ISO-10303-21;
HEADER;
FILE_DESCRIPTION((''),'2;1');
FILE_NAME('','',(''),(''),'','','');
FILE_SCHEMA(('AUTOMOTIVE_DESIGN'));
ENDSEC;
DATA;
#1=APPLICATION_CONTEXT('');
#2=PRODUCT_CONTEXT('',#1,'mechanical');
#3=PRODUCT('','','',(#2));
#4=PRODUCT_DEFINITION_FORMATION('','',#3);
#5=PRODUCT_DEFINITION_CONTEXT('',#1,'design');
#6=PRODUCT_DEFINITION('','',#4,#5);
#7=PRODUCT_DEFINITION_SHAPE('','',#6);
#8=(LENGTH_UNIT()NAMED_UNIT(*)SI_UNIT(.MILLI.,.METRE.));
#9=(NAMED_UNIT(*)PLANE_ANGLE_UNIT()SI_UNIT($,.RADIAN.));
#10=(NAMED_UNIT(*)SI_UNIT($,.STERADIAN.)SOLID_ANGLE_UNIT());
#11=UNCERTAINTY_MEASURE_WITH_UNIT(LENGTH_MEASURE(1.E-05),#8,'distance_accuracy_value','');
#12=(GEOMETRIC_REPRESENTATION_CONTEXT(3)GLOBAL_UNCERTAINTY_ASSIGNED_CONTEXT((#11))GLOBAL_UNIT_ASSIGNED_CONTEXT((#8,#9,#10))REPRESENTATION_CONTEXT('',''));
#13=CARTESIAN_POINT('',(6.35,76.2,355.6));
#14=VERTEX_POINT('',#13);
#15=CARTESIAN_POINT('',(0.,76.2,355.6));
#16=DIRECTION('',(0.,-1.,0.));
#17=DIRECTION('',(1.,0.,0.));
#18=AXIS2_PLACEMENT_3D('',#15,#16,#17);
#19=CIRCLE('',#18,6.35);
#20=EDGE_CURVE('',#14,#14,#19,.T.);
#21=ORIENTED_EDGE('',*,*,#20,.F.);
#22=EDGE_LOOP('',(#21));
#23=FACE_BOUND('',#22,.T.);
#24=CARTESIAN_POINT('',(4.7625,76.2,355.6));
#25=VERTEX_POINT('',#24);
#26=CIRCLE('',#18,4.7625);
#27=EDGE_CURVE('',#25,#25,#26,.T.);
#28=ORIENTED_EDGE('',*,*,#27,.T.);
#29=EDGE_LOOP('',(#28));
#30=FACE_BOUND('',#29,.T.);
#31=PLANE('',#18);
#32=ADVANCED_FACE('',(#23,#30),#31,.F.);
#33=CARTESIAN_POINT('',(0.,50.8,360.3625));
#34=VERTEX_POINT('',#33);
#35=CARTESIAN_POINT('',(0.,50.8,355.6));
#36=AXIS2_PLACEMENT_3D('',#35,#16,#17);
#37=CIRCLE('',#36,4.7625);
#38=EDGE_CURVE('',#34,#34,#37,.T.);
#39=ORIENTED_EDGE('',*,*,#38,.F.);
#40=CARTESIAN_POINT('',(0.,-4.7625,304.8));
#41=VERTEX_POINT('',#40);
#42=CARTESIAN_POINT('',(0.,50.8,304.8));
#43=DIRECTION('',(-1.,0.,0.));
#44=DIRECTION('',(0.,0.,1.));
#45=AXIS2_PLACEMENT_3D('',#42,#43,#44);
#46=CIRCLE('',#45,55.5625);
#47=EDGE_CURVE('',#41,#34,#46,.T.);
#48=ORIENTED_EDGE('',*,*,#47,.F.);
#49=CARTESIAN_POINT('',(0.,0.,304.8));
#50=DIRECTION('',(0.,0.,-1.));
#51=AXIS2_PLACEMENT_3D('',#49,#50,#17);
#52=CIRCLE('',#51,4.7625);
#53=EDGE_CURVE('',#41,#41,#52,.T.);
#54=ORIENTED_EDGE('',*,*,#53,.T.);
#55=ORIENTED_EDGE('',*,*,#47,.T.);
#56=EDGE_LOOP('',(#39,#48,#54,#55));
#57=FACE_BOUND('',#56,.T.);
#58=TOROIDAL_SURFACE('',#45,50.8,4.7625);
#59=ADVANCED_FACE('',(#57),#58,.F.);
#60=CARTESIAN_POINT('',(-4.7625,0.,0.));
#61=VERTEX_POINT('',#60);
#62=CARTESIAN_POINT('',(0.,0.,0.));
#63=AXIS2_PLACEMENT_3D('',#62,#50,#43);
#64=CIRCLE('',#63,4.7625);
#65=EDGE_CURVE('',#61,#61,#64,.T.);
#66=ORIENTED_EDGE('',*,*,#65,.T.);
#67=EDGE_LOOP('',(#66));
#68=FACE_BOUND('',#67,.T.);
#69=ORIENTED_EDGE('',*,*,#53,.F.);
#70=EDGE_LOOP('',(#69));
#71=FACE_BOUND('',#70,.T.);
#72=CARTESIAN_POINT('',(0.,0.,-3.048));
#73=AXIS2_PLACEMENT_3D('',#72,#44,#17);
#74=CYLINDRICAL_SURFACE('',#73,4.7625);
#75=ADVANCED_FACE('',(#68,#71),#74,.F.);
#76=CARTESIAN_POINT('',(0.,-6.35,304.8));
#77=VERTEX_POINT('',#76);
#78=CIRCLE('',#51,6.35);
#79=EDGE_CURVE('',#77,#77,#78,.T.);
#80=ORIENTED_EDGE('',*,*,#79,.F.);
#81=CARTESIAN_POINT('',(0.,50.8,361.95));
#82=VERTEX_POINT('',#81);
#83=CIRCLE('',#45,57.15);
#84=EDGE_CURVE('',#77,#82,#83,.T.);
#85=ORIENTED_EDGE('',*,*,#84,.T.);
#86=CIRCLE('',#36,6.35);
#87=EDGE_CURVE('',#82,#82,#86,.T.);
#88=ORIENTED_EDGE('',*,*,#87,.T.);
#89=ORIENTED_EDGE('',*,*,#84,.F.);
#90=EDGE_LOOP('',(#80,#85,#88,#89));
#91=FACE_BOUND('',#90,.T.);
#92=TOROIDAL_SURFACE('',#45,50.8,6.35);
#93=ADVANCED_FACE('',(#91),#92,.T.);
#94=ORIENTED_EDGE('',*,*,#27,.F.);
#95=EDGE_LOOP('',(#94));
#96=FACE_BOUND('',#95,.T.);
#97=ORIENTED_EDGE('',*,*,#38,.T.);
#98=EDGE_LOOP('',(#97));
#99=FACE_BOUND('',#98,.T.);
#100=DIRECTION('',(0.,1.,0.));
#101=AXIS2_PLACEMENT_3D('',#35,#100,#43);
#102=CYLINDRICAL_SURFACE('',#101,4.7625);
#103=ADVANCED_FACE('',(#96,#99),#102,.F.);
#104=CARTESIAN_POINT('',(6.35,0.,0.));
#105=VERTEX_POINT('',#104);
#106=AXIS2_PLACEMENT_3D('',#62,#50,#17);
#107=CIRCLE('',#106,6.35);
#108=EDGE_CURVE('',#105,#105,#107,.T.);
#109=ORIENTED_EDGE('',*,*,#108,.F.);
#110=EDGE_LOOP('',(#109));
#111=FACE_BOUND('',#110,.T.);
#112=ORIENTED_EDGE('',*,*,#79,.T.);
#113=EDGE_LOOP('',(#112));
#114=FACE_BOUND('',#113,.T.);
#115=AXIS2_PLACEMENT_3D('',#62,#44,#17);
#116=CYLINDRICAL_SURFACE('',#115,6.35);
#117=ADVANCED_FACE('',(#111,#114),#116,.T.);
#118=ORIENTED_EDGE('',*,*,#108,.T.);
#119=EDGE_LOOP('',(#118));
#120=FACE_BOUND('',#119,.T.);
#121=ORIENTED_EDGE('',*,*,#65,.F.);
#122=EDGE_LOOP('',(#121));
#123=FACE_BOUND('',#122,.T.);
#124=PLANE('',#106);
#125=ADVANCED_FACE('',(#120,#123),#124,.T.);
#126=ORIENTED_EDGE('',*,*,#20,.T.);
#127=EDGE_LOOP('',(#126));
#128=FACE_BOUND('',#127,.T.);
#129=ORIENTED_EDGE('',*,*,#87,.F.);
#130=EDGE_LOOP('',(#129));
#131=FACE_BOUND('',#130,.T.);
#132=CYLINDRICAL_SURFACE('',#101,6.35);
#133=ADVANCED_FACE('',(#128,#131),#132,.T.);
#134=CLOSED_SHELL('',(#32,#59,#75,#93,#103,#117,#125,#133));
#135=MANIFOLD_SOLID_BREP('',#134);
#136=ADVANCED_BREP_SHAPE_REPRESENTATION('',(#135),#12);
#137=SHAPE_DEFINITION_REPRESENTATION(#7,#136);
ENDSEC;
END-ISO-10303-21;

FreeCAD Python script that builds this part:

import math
import FreeCAD as App
import Part
import Sketcher

V = App.Vector
Q = App.Units.Quantity

doc = App.newDocument("Part")
params = doc.addObject("Spreadsheet::Sheet", "Params")
for row, (alias, value) in enumerate([
    ("sketch1_diameter", "0.5 in"),
    ("sketch2_radius", "2 in"),
    ("sketch2_width", "1 in"),
    ("sketch2_height", "12 in"),
    ("sketch3_diameter", "0.375 in"),
    ("sketch4_radius", "2 in"),
    ("sketch4_width", "1 in"),
    ("sketch4_height", "12 in"),
], start=1):
    params.set(f"A{row}", alias)
    params.set(f"B{row}", "=" + value)
    params.setAlias(f"B{row}", alias)

body = doc.addObject("PartDesign::Body", "Body")

# Sketch on XY plane
sketch1 = doc.addObject("Sketcher::SketchObject", "Sketch")
body.addObject(sketch1)
sketch1.AttachmentSupport = (doc.XY_Plane, [""])
sketch1.MapMode = "FlatFace"
sketch1.addGeometry(Part.Circle(V(0, 0, 0), V(0, 0, 1), 6.35), False)
sketch1.addConstraint([
    Sketcher.Constraint("Coincident", 0, 3, -1, 1),
    Sketcher.Constraint("Diameter", 0, Q("0.5 in")),
])
sketch1.setExpression("Constraints[1]", "Params.sketch1_diameter")

# Sketch on YZ plane
sketch2 = doc.addObject("Sketcher::SketchObject", "Sketch001")
body.addObject(sketch2)
sketch2.AttachmentSupport = (doc.YZ_Plane, [""])
sketch2.MapMode = "FlatFace"
sketch2.addGeometry([
    Part.LineSegment(V(0, 0, 0), V(0, 304.8, 0)),
    Part.ArcOfCircle(Part.Circle(V(50.8, 304.8, 0), V(0, 0, 1), 50.8), math.radians(90), math.radians(180)),
    Part.LineSegment(V(50.8, 355.6, 0), V(76.2, 355.6, 0)),
], False)
sketch2.addConstraint([
    Sketcher.Constraint("Tangent", 0, 2, 1, 2),
    Sketcher.Constraint("Tangent", 1, 1, 2, 1),
    Sketcher.Constraint("Vertical", 0),
    Sketcher.Constraint("Horizontal", 2),
    Sketcher.Constraint("Coincident", 0, 1, -1, 1),
    Sketcher.Constraint("Radius", 1, Q("2 in")),
    Sketcher.Constraint("DistanceX", 2, 1, 2, 2, Q("1 in")),
    Sketcher.Constraint("DistanceY", 0, 1, 0, 2, Q("12 in")),
])
sketch2.setExpression("Constraints[5]", "Params.sketch2_radius")
sketch2.setExpression("Constraints[6]", "Params.sketch2_width")
sketch2.setExpression("Constraints[7]", "Params.sketch2_height")
doc.recompute()

additivepipe = doc.addObject("PartDesign::AdditivePipe", "AdditivePipe")
body.addObject(additivepipe)
additivepipe.Profile = sketch1
additivepipe.Spine = (sketch2, ["Edge1", "Edge2", "Edge3"])

# Sketch on XY plane
sketch3 = doc.addObject("Sketcher::SketchObject", "Sketch002")
body.addObject(sketch3)
sketch3.AttachmentSupport = (doc.XY_Plane, [""])
sketch3.MapMode = "FlatFace"
sketch3.addGeometry(Part.Circle(V(0, 0, 0), V(0, 0, 1), 4.7625), False)
sketch3.addConstraint([
    Sketcher.Constraint("Coincident", 0, 3, -1, 1),
    Sketcher.Constraint("Diameter", 0, Q("0.375 in")),
])
sketch3.setExpression("Constraints[1]", "Params.sketch3_diameter")

# Sketch on YZ plane
sketch4 = doc.addObject("Sketcher::SketchObject", "Sketch003")
body.addObject(sketch4)
sketch4.AttachmentSupport = (doc.YZ_Plane, [""])
sketch4.MapMode = "FlatFace"
sketch4.addGeometry([
    Part.LineSegment(V(0, 0, 0), V(0, 304.8, 0)),
    Part.ArcOfCircle(Part.Circle(V(50.8, 304.8, 0), V(0, 0, 1), 50.8), math.radians(90), math.radians(180)),
    Part.LineSegment(V(50.8, 355.6, 0), V(76.2, 355.6, 0)),
], False)
sketch4.addConstraint([
    Sketcher.Constraint("Tangent", 0, 2, 1, 2),
    Sketcher.Constraint("Tangent", 1, 1, 2, 1),
    Sketcher.Constraint("Vertical", 0),
    Sketcher.Constraint("Horizontal", 2),
    Sketcher.Constraint("Coincident", 0, 1, -1, 1),
    Sketcher.Constraint("Radius", 1, Q("2 in")),
    Sketcher.Constraint("DistanceX", 2, 1, 2, 2, Q("1 in")),
    Sketcher.Constraint("DistanceY", 0, 1, 0, 2, Q("12 in")),
])
sketch4.setExpression("Constraints[5]", "Params.sketch4_radius")
sketch4.setExpression("Constraints[6]", "Params.sketch4_width")
sketch4.setExpression("Constraints[7]", "Params.sketch4_height")
doc.recompute()

subtractivepipe = doc.addObject("PartDesign::SubtractivePipe", "SubtractivePipe")
body.addObject(subtractivepipe)
subtractivepipe.Profile = sketch3
subtractivepipe.Spine = (sketch4, ["Edge1", "Edge2", "Edge3"])

doc.recompute()
